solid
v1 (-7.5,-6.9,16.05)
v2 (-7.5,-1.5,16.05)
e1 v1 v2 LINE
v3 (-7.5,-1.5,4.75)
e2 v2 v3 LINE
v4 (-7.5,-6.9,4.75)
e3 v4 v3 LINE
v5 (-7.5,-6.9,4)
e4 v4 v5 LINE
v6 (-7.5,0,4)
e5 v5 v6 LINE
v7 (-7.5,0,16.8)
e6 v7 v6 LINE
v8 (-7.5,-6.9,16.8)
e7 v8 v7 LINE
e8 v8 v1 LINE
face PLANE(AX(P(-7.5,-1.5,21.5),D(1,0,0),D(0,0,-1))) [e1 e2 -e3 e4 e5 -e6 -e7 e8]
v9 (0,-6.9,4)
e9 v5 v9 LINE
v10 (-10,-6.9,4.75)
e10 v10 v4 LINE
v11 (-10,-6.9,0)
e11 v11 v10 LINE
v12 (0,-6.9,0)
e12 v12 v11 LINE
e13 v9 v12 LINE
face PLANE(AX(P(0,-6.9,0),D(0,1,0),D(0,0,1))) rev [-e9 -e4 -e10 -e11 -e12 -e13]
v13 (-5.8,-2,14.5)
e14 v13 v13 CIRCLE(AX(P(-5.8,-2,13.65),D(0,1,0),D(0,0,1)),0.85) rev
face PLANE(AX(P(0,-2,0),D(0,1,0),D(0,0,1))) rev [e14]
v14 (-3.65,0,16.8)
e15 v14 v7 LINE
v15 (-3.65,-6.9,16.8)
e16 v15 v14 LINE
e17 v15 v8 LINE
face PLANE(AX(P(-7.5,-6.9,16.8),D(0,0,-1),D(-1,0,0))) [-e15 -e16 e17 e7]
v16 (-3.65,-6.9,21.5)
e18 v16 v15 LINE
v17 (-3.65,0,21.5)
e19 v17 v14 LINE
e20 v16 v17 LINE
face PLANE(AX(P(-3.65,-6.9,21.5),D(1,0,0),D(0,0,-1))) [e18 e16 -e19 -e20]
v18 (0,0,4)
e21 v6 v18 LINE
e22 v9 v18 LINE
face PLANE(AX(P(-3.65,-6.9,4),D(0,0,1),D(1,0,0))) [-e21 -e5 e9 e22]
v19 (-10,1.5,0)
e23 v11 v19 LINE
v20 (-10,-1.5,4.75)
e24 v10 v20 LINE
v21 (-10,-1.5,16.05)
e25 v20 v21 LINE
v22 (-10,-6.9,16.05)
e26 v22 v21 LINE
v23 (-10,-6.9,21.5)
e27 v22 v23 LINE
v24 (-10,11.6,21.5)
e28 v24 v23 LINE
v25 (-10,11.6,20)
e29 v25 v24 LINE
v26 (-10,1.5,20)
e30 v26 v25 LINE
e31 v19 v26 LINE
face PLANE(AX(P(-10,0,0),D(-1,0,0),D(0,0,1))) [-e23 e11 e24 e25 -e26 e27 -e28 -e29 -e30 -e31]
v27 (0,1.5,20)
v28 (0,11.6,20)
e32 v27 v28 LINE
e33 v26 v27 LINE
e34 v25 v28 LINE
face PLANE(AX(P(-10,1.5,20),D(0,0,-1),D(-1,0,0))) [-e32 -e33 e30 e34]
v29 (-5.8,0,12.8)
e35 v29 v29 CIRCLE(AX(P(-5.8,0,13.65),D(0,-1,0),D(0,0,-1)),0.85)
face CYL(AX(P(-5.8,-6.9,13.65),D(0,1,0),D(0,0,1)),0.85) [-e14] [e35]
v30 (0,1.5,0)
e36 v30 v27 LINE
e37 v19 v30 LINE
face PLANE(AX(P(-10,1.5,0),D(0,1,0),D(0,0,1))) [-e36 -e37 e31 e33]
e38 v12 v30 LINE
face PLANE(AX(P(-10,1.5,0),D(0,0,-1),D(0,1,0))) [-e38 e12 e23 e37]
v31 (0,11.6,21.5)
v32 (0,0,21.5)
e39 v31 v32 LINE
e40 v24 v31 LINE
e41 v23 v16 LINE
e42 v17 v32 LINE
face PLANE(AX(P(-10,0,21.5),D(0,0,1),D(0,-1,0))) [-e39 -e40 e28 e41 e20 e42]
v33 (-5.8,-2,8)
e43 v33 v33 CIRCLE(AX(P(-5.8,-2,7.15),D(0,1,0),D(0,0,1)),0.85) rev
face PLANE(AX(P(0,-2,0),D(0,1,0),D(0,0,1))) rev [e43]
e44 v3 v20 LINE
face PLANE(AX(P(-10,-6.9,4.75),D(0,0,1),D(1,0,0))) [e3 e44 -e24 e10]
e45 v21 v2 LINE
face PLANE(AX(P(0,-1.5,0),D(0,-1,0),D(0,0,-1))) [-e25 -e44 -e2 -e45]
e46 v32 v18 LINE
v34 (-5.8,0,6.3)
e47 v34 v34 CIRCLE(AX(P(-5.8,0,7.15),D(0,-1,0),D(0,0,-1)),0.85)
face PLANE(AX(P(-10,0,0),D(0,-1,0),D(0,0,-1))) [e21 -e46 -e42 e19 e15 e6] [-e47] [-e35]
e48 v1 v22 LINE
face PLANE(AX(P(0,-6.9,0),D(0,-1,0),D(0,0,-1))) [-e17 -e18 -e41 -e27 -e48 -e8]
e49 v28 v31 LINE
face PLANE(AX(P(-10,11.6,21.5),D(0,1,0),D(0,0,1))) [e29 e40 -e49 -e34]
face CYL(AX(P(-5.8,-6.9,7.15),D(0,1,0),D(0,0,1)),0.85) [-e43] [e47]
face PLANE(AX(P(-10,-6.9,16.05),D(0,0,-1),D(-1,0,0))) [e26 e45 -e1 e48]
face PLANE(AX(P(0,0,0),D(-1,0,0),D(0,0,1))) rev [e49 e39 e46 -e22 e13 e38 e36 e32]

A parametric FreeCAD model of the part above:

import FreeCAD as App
import Part
import Sketcher
from FreeCAD import Vector
Q = App.Units.Quantity

doc = App.newDocument("Part")
body = doc.addObject("PartDesign::Body", "Body")

sketch1 = body.newObject("Sketcher::SketchObject", "Sketch")
sketch1.AttachmentSupport = (doc.getObject("YZ_Plane"), [""])
sketch1.MapMode = "FlatFace"
sketch1.addGeometry(Part.LineSegment(Vector(0, 21.5, 0), Vector(0, 0, 0)), False)
sketch1.addGeometry(Part.LineSegment(Vector(0, 0, 0), Vector(1.5, 0, 0)), False)
sketch1.addGeometry(Part.LineSegment(Vector(1.5, 0, 0), Vector(1.5, 20, 0)), False)
sketch1.addGeometry(Part.LineSegment(Vector(1.5, 20, 0), Vector(11.6, 20, 0)), False)
sketch1.addGeometry(Part.LineSegment(Vector(11.6, 20, 0), Vector(11.6, 21.5, 0)), False)
sketch1.addGeometry(Part.LineSegment(Vector(11.6, 21.5, 0), Vector(0, 21.5, 0)), False)
sketch1.addConstraint(Sketcher.Constraint("Coincident", 0, 2, 1, 1))
sketch1.addConstraint(Sketcher.Constraint("Coincident", 1, 2, 2, 1))
sketch1.addConstraint(Sketcher.Constraint("Coincident", 2, 2, 3, 1))
sketch1.addConstraint(Sketcher.Constraint("Coincident", 3, 2, 4, 1))
sketch1.addConstraint(Sketcher.Constraint("Coincident", 4, 2, 5, 1))
sketch1.addConstraint(Sketcher.Constraint("Coincident", 5, 2, 0, 1))
sketch1.addConstraint(Sketcher.Constraint("Vertical", 0))
sketch1.addConstraint(Sketcher.Constraint("Horizontal", 1))
sketch1.addConstraint(Sketcher.Constraint("Vertical", 2))
sketch1.addConstraint(Sketcher.Constraint("Horizontal", 3))
sketch1.addConstraint(Sketcher.Constraint("Vertical", 4))
sketch1.addConstraint(Sketcher.Constraint("Horizontal", 5))
sketch1.addConstraint(Sketcher.Constraint("Coincident", 0, 2, -1, 1))
sketch1.addConstraint(Sketcher.Constraint("Equal", 1, 4))
sketch1.addConstraint(Sketcher.Constraint("DistanceY", 2, 1, 2, 2, Q("20 mm")))
sketch1.addConstraint(Sketcher.Constraint("DistanceX", 1, 1, 1, 2, Q("1.5 mm")))
sketch1.addConstraint(Sketcher.Constraint("DistanceX", 3, 1, 3, 2, Q("10.1 mm")))
pad1 = body.newObject("PartDesign::Pad", "Pad")
pad1.Profile = sketch1
pad1.Length = 10
pad1.Reversed = True

sketch2 = body.newObject("Sketcher::SketchObject", "Sketch001")
sketch2.AttachmentSupport = (doc.getObject("XZ_Plane"), [""])
sketch2.MapMode = "FlatFace"
sketch2.addGeometry(Part.LineSegment(Vector(-10, 0, 0), Vector(-10, 21.5, 0)), False)
sketch2.addGeometry(Part.LineSegment(Vector(-10, 21.5, 0), Vector(-7.5, 21.5, 0)), False)
sketch2.addGeometry(Part.LineSegment(Vector(-7.5, 21.5, 0), Vector(-7.5, 0, 0)), False)
sketch2.addGeometry(Part.LineSegment(Vector(-7.5, 0, 0), Vector(-10, 0, 0)), False)
sketch2.addConstraint(Sketcher.Constraint("Coincident", 0, 2, 1, 1))
sketch2.addConstraint(Sketcher.Constraint("Coincident", 1, 2, 2, 1))
sketch2.addConstraint(Sketcher.Constraint("Coincident", 2, 2, 3, 1))
sketch2.addConstraint(Sketcher.Constraint("Coincident", 3, 2, 0, 1))
sketch2.addConstraint(Sketcher.Constraint("Vertical", 0))
sketch2.addConstraint(Sketcher.Constraint("Horizontal", 1))
sketch2.addConstraint(Sketcher.Constraint("Vertical", 2))
sketch2.addConstraint(Sketcher.Constraint("Horizontal", 3))
sketch2.addConstraint(Sketcher.Constraint("PointOnObject", 2, 2, -1))
sketch2.addConstraint(Sketcher.Constraint("DistanceX", 1, 1, 1, 2, Q("2.5 mm")))
sketch2.addConstraint(Sketcher.Constraint("DistanceY", 0, 1, 0, 2, Q("21.5 mm")))
sketch2.addConstraint(Sketcher.Constraint("DistanceX", 0, 2, -1, 1, Q("10 mm")))
pad2 = body.newObject("PartDesign::Pad", "Pad001")
pad2.Profile = sketch2
pad2.Length = 1.5

sketch3 = body.newObject("Sketcher::SketchObject", "Sketch002")
sketch3.AttachmentSupport = (doc.getObject("XZ_Plane"), [""])
sketch3.MapMode = "FlatFace"
sketch3.addGeometry(Part.Circle(Vector(-5.8, 7.2, 0), Vector(0, 0, 1), 0.8), False)
sketch3.addGeometry(Part.Circle(Vector(-5.8, 13.7, 0), Vector(0, 0, 1), 0.8), False)
sketch3.addGeometry(Part.LineSegment(Vector(0, 0, 0), Vector(-10, 0, 0)), False)
sketch3.addGeometry(Part.LineSegment(Vector(-10, 0, 0), Vector(-10, 4.8, 0)), False)
sketch3.addGeometry(Part.LineSegment(Vector(-10, 4.8, 0), Vector(-7.5, 4.8, 0)), False)
sketch3.addGeometry(Part.LineSegment(Vector(-7.5, 4.8, 0), Vector(-7.5, 4, 0)), False)
sketch3.addGeometry(Part.LineSegment(Vector(-7.5, 4, 0), Vector(0, 4, 0)), False)
sketch3.addGeometry(Part.LineSegment(Vector(0, 4, 0), Vector(0, 0, 0)), False)
sketch3.addGeometry(Part.LineSegment(Vector(-3.6, 21.5, 0), Vector(-3.6, 16.8, 0)), False)
sketch3.addGeometry(Part.LineSegment(Vector(-3.6, 16.8, 0), Vector(-7.5, 16.8, 0)), False)
sketch3.addGeometry(Part.LineSegment(Vector(-7.5, 16.8, 0), Vector(-7.5, 16.1, 0)), False)
sketch3.addGeometry(Part.LineSegment(Vector(-7.5, 16.1, 0), Vector(-10, 16.1, 0)), False)
sketch3.addGeometry(Part.LineSegment(Vector(-10, 16.1, 0), Vector(-10, 21.5, 0)), False)
sketch3.addGeometry(Part.LineSegment(Vector(-10, 21.5, 0), Vector(-3.6, 21.5, 0)), False)
sketch3.addConstraint(Sketcher.Constraint("Coincident", 2, 2, 3, 1))
sketch3.addConstraint(Sketcher.Constraint("Coincident", 3, 2, 4, 1))
sketch3.addConstraint(Sketcher.Constraint("Coincident", 4, 2, 5, 1))
sketch3.addConstraint(Sketcher.Constraint("Coincident", 5, 2, 6, 1))
sketch3.addConstraint(Sketcher.Constraint("Coincident", 6, 2, 7, 1))
sketch3.addConstraint(Sketcher.Constraint("Coincident", 7, 2, 2, 1))
sketch3.addConstraint(Sketcher.Constraint("Coincident", 8, 2, 9, 1))
sketch3.addConstraint(Sketcher.Constraint("Coincident", 9, 2, 10, 1))
sketch3.addConstraint(Sketcher.Constraint("Coincident", 10, 2, 11, 1))
sketch3.addConstraint(Sketcher.Constraint("Coincident", 11, 2, 12, 1))
sketch3.addConstraint(Sketcher.Constraint("Coincident", 12, 2, 13, 1))
sketch3.addConstraint(Sketcher.Constraint("Coincident", 13, 2, 8, 1))
sketch3.addConstraint(Sketcher.Constraint("Horizontal", 2))
sketch3.addConstraint(Sketcher.Constraint("Vertical", 3))
sketch3.addConstraint(Sketcher.Constraint("Horizontal", 4))
sketch3.addConstraint(Sketcher.Constraint("Vertical", 5))
sketch3.addConstraint(Sketcher.Constraint("Horizontal", 6))
sketch3.addConstraint(Sketcher.Constraint("Vertical", 7))
sketch3.addConstraint(Sketcher.Constraint("Vertical", 8))
sketch3.addConstraint(Sketcher.Constraint("Horizontal", 9))
sketch3.addConstraint(Sketcher.Constraint("Vertical", 10))
sketch3.addConstraint(Sketcher.Constraint("Horizontal", 11))
sketch3.addConstraint(Sketcher.Constraint("Vertical", 12))
sketch3.addConstraint(Sketcher.Constraint("Horizontal", 13))
sketch3.addConstraint(Sketcher.Constraint("Coincident", 7, 2, -1, 1))
sketch3.addConstraint(Sketcher.Constraint("Equal", 0, 1))
sketch3.addConstraint(Sketcher.Constraint("Vertical", 0, 3, 1, 3))
sketch3.addConstraint(Sketcher.Constraint("Vertical", 5, 2, 9, 2))
sketch3.addConstraint(Sketcher.Constraint("Vertical", 3, 2, 11, 2))
sketch3.addConstraint(Sketcher.Constraint("Equal", 5, 10))
sketch3.addConstraint(Sketcher.Constraint("Diameter", 0, Q("1.7 mm")))
sketch3.addConstraint(Sketcher.Constraint("DistanceX", 2, 2, 2, 1, Q("10 mm")))
sketch3.addConstraint(Sketcher.Constraint("DistanceY", 7, 2, 7, 1, Q("4 mm")))
sketch3.addConstraint(Sketcher.Constraint("DistanceX", 4, 1, 4, 2, Q("2.5 mm")))
sketch3.addConstraint(Sketcher.Constraint("DistanceY", 8, 2, 8, 1, Q("4.7 mm")))
sketch3.addConstraint(Sketcher.Constraint("DistanceX", 9, 2, 9, 1, Q("3.85 mm")))
sketch3.addConstraint(Sketcher.Constraint("DistanceY", 3, 1, 3, 2, Q("4.75 mm")))
sketch3.addConstraint(Sketcher.Constraint("DistanceX", 0, 3, -1, 1, Q("5.8 mm")))
sketch3.addConstraint(Sketcher.Constraint("DistanceY", -1, 1, 8, 2, Q("16.8 mm")))
sketch3.addConstraint(Sketcher.Constraint("DistanceY", 0, 3, 1, 3, Q("6.5 mm")))
sketch3.addConstraint(Sketcher.Constraint("DistanceY", 3, 2, 0, 3, Q("2.4 mm")))
pad3 = body.newObject("PartDesign::Pad", "Pad002")
pad3.Profile = sketch3
pad3.Length = 6.9

sketch4 = body.newObject("Sketcher::SketchObject", "Sketch003")
sketch4.AttachmentSupport = (doc.getObject("XZ_Plane"), [""])
sketch4.MapMode = "FlatFace"
sketch4.AttachmentOffset = App.Placement(Vector(0, 0, 2), App.Rotation())
sketch4.addGeometry(Part.LineSegment(Vector(-7.5, 16.8, 0), Vector(-7.5, 4, 0)), False)
sketch4.addGeometry(Part.LineSegment(Vector(-7.5, 4, 0), Vector(-3.6, 4, 0)), False)
sketch4.addGeometry(Part.LineSegment(Vector(-3.6, 4, 0), Vector(-3.6, 16.8, 0)), False)
sketch4.addGeometry(Part.LineSegment(Vector(-3.6, 16.8, 0), Vector(-7.5, 16.8, 0)), False)
sketch4.addConstraint(Sketcher.Constraint("Coincident", 0, 2, 1, 1))
sketch4.addConstraint(Sketcher.Constraint("Coincident", 1, 2, 2, 1))
sketch4.addConstraint(Sketcher.Constraint("Coincident", 2, 2, 3, 1))
sketch4.addConstraint(Sketcher.Constraint("Coincident", 3, 2, 0, 1))
sketch4.addConstraint(Sketcher.Constraint("Vertical", 0))
sketch4.addConstraint(Sketcher.Constraint("Horizontal", 1))
sketch4.addConstraint(Sketcher.Constraint("Vertical", 2))
sketch4.addConstraint(Sketcher.Constraint("Horizontal", 3))
sketch4.addConstraint(Sketcher.Constraint("DistanceY", 0, 2, 0, 1, Q("12.8 mm")))
sketch4.addConstraint(Sketcher.Constraint("DistanceY", -1, 1, 0, 2, Q("4 mm")))
sketch4.addConstraint(Sketcher.Constraint("DistanceX", 1, 1, 1, 2, Q("3.85 mm")))
sketch4.addConstraint(Sketcher.Constraint("DistanceX", 0, 2, -1, 1, Q("7.5 mm")))
pocket1 = body.newObject("PartDesign::Pocket", "Pocket")
pocket1.Profile = sketch4
pocket1.Type = "ThroughAll"
pocket1.Reversed = True

doc.recompute()
